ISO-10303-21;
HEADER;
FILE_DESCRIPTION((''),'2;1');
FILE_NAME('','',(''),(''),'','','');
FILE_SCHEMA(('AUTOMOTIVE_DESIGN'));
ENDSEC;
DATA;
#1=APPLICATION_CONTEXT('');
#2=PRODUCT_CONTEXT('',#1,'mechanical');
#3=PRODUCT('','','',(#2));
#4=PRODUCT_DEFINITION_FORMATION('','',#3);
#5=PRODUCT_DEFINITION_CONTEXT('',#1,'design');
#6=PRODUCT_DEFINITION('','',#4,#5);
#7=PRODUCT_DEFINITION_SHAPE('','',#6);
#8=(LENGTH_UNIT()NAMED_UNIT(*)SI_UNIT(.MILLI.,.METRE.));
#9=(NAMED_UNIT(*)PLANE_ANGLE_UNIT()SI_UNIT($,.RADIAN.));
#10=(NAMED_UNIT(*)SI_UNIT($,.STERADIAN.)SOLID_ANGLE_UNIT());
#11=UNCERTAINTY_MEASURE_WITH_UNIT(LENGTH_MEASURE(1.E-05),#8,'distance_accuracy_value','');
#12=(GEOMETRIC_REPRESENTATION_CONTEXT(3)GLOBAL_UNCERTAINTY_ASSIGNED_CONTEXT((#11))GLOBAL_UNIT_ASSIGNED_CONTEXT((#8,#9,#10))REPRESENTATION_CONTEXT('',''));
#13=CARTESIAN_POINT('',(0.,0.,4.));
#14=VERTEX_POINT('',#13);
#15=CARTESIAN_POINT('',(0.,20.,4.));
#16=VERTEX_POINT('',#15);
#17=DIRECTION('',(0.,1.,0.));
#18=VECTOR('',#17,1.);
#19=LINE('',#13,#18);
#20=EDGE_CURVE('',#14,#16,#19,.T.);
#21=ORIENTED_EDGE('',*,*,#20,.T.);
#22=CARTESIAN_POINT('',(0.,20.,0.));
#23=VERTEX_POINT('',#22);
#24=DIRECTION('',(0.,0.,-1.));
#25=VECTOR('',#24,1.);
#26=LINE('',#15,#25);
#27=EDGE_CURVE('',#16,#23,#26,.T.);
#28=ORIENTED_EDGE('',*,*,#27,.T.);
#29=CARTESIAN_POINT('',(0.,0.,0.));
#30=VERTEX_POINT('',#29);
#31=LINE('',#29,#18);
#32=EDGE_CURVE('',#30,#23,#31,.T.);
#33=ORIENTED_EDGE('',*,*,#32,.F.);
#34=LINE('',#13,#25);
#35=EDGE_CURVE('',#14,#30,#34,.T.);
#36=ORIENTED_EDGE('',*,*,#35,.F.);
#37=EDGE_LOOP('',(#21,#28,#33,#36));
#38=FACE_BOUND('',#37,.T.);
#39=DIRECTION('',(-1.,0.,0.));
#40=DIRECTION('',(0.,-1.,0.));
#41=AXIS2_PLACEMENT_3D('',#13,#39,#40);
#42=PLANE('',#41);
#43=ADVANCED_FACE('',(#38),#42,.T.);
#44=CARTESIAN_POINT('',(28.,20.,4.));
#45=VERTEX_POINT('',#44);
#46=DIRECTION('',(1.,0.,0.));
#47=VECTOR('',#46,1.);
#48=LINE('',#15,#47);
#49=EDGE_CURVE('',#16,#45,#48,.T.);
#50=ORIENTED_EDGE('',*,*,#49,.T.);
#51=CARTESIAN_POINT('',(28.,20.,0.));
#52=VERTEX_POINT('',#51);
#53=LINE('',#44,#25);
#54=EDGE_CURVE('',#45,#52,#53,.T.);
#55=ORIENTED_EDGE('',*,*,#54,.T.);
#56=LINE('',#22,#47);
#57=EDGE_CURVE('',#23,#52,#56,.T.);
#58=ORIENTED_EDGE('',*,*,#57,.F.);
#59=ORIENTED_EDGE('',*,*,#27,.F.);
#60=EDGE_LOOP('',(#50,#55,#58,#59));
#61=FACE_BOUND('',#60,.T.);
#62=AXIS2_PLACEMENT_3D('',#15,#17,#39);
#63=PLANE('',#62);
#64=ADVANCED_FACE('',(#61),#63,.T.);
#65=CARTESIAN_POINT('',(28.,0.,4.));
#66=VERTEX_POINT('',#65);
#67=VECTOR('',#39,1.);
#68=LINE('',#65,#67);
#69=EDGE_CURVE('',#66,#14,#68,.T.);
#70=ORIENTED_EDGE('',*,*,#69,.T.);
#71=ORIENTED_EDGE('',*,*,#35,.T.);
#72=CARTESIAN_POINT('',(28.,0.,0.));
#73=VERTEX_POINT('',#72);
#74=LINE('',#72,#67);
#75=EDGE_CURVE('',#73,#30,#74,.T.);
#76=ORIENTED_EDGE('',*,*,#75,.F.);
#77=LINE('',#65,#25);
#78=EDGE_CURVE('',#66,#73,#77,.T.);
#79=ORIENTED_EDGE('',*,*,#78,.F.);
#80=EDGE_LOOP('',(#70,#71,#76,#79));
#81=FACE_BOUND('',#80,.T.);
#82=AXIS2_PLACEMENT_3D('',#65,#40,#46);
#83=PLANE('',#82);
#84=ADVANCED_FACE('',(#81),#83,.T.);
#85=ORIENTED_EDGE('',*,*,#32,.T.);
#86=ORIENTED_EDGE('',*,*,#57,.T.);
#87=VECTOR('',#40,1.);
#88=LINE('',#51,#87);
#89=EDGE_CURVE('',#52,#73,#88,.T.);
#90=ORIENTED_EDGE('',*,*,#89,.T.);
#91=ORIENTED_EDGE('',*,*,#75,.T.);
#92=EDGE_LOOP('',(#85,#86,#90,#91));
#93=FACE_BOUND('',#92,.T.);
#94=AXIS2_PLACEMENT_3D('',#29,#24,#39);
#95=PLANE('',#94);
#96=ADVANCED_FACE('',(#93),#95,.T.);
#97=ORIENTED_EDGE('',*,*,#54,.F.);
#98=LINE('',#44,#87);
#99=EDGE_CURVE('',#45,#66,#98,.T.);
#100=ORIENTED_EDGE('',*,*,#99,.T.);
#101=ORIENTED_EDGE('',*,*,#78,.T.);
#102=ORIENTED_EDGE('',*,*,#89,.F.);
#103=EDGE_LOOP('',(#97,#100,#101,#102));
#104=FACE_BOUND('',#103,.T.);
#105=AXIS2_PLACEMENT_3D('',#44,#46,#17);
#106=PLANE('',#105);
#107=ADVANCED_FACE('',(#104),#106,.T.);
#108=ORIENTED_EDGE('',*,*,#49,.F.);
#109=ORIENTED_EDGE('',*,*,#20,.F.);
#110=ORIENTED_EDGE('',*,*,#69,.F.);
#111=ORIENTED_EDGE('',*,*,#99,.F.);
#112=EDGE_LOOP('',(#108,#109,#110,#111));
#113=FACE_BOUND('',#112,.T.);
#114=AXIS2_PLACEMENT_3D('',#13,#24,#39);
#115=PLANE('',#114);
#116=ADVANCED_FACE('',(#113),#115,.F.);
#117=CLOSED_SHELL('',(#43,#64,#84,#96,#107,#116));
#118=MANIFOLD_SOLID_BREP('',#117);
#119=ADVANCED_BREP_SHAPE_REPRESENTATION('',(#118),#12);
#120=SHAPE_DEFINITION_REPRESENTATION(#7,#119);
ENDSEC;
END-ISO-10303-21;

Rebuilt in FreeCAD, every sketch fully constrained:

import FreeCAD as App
import Part
import Sketcher
from FreeCAD import Vector


def add_polygon(sketch, points):
    """Adds a closed chain of lines whose ends are joined by coincident constraints."""
    first, n = sketch.GeometryCount, len(points)
    for a, b in zip(points, points[1:] + points[:1]):
        sketch.addGeometry(Part.LineSegment(App.Vector(*a, 0), App.Vector(*b, 0)), False)
    for i in range(n):
        sketch.addConstraint(Sketcher.Constraint("Coincident", first + i, 2, first + (i + 1) % n, 1))

doc = App.newDocument("Part")
body = doc.addObject("PartDesign::Body", "Body")

sketch1 = body.newObject("Sketcher::SketchObject", "Sketch")
sketch1.AttachmentSupport = (doc.getObject("XY_Plane"), [""])
sketch1.MapMode = "FlatFace"
add_polygon(sketch1, [(0, 20), (0, 0), (28, 0), (28, 20)])
sketch1.addConstraint(Sketcher.Constraint("Vertical", 0))
sketch1.addConstraint(Sketcher.Constraint("Horizontal", 1))
sketch1.addConstraint(Sketcher.Constraint("Vertical", 2))
sketch1.addConstraint(Sketcher.Constraint("Horizontal", 3))
sketch1.addConstraint(Sketcher.Constraint("Coincident", 0, 2, -1, 1))
sketch1.addConstraint(Sketcher.Constraint("DistanceX", 1, 1, 1, 2, 28.0))
sketch1.addConstraint(Sketcher.Constraint("DistanceY", 0, 2, 0, 1, 20.0))
pad1 = body.newObject("PartDesign::Pad", "Pad")
pad1.Profile = sketch1
pad1.Length = 4

doc.recompute()
